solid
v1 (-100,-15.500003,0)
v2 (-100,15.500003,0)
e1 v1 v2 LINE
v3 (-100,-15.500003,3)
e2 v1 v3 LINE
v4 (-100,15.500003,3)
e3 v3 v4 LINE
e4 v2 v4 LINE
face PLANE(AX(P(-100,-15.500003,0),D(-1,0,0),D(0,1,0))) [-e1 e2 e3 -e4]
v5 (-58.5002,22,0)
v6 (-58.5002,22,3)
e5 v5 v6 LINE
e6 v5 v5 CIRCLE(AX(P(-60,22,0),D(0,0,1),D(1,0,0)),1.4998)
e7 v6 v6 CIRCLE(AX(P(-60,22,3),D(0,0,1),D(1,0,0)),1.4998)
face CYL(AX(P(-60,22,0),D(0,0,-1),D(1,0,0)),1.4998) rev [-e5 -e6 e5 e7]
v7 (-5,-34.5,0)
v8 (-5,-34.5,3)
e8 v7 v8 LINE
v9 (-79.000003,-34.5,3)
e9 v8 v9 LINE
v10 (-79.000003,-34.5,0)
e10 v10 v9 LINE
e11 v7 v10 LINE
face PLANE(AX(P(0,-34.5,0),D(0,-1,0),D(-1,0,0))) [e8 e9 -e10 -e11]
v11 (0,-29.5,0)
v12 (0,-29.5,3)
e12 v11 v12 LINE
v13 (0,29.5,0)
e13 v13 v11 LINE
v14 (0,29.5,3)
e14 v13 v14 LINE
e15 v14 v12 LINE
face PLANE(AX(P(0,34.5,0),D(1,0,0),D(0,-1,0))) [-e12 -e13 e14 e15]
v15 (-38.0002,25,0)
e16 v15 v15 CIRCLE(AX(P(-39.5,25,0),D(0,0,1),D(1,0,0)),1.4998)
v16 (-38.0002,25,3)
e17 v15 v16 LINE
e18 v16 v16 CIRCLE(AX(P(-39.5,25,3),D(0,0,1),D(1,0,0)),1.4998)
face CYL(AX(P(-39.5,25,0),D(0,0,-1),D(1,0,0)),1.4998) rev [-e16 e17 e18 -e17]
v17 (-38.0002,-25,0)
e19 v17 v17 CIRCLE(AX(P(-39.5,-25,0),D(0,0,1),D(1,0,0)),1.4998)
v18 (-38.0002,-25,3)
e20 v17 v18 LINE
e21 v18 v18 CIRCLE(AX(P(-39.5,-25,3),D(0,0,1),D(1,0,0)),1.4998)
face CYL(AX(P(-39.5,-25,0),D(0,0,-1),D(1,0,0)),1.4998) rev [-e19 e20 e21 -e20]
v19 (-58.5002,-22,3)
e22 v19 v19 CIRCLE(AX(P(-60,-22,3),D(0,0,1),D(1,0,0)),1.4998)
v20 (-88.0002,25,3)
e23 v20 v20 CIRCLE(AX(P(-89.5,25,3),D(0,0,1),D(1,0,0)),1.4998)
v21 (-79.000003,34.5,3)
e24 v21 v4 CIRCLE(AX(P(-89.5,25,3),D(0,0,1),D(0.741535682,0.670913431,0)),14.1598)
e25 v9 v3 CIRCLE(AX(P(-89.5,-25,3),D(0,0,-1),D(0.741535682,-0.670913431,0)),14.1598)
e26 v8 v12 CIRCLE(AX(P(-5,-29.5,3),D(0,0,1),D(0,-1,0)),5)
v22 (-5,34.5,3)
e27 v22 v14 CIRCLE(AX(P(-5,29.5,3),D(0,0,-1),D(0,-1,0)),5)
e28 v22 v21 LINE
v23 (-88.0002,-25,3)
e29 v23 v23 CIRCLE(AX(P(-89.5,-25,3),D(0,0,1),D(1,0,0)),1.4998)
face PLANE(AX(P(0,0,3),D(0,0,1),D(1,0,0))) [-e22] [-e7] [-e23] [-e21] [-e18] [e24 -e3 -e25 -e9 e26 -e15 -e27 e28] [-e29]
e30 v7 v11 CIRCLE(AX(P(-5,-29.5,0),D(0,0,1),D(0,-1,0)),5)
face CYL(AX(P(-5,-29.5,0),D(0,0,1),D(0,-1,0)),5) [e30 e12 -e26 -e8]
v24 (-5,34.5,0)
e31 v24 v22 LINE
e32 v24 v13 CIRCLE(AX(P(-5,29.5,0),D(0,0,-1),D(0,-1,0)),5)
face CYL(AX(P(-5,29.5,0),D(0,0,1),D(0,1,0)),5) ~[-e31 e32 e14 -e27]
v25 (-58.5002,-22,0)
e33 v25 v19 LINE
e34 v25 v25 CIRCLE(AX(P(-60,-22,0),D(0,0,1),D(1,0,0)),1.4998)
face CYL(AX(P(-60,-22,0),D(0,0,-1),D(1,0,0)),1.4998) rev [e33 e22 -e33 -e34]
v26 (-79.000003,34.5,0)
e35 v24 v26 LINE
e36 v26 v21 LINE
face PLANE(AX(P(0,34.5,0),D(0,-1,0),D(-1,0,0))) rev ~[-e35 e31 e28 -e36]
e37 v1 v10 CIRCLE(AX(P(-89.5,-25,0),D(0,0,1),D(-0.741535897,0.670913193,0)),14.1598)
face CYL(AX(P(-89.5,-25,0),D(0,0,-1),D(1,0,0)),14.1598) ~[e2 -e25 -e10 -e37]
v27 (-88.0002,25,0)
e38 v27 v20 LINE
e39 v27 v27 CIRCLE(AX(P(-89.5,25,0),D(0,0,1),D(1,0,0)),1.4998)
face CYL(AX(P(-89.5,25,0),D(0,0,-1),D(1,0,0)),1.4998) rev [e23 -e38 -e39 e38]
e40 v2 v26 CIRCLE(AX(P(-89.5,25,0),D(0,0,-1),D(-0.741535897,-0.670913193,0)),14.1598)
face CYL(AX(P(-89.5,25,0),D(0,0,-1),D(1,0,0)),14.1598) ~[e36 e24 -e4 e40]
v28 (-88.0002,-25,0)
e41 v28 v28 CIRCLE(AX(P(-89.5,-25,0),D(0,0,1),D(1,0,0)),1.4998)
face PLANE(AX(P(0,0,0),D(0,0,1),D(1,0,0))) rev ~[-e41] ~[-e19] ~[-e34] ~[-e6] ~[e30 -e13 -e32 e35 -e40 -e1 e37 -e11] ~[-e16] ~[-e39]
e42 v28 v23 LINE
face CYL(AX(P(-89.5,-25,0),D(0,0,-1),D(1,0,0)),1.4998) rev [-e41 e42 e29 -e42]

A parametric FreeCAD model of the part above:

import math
import FreeCAD as App
import Part
import Sketcher

V = App.Vector
Q = App.Units.Quantity


def edges_at(feature, points):
    """Names of the edges that pass closest to the given points."""
    edges = feature.Shape.Edges
    near = lambda p: min(range(len(edges)), key=lambda i: edges[i].distToShape(Part.Vertex(*p))[0])
    return sorted({f"Edge{near(p) + 1}" for p in points})

doc = App.newDocument("Part")
params = doc.addObject("Spreadsheet::Sheet", "Params")
for row, (alias, value) in enumerate([
    ("sketch1_width", "79 mm"),
    ("sketch1_height", "69 mm"),
    ("sketch1_height2", "31 mm"),
    ("pad1_length", "3 mm"),
    ("fillet_radius", "5 mm"),
], start=1):
    params.set(f"A{row}", alias)
    params.set(f"B{row}", "=" + value)
    params.setAlias(f"B{row}", alias)

body = doc.addObject("PartDesign::Body", "Body")

# Sketch on XY plane
sketch1 = body.newObject("Sketcher::SketchObject", "Sketch")
sketch1.AttachmentSupport = (doc.getObject("XY_Plane"), [""])
sketch1.MapMode = "FlatFace"
sketch1.addGeometry(Part.ArcOfCircle(Part.Circle(V(-89.5, -25, 0), V(0, 0, 1), 14.2), math.radians(138), math.radians(318)), False)
sketch1.addGeometry(Part.LineSegment(V(-79, -34.5, 0), V(0, -34.5, 0)), False)
sketch1.addGeometry(Part.LineSegment(V(0, -34.5, 0), V(0, 34.5, 0)), False)
sketch1.addGeometry(Part.LineSegment(V(0, 34.5, 0), V(-79, 34.5, 0)), False)
sketch1.addGeometry(Part.ArcOfCircle(Part.Circle(V(-89.5, 25, 0), V(0, 0, 1), 14.2), math.radians(42), math.radians(222)), False)
sketch1.addGeometry(Part.LineSegment(V(-100, 15.5, 0), V(-100, -15.5, 0)), False)
sketch1.addGeometry(Part.Circle(V(-89.5, -25, 0), V(0, 0, 1), 1.5), False)
sketch1.addGeometry(Part.Circle(V(-60, 22, 0), V(0, 0, 1), 1.5), False)
sketch1.addGeometry(Part.Circle(V(-39.5, 25, 0), V(0, 0, 1), 1.5), False)
sketch1.addGeometry(Part.Circle(V(-60, -22, 0), V(0, 0, 1), 1.5), False)
sketch1.addGeometry(Part.Circle(V(-39.5, -25, 0), V(0, 0, 1), 1.5), False)
sketch1.addGeometry(Part.Circle(V(-89.5, 25, 0), V(0, 0, 1), 1.5), False)
sketch1.addConstraint(Sketcher.Constraint("Coincident", 0, 2, 1, 1))
sketch1.addConstraint(Sketcher.Constraint("Coincident", 1, 2, 2, 1))
sketch1.addConstraint(Sketcher.Constraint("Coincident", 2, 2, 3, 1))
sketch1.addConstraint(Sketcher.Constraint("Coincident", 3, 2, 4, 1))
sketch1.addConstraint(Sketcher.Constraint("Coincident", 4, 2, 5, 1))
sketch1.addConstraint(Sketcher.Constraint("Coincident", 5, 2, 0, 1))
sketch1.addConstraint(Sketcher.Constraint("Horizontal", 1))
sketch1.addConstraint(Sketcher.Constraint("Vertical", 2))
sketch1.addConstraint(Sketcher.Constraint("Horizontal", 3))
sketch1.addConstraint(Sketcher.Constraint("Vertical", 5))
sketch1.addConstraint(Sketcher.Constraint("Coincident", 6, 3, 0, 3))
sketch1.addConstraint(Sketcher.Constraint("Coincident", 11, 3, 4, 3))
sketch1.addConstraint(Sketcher.Constraint("Equal", 0, 4))
sketch1.addConstraint(Sketcher.Constraint("Equal", 6, 7))
sketch1.addConstraint(Sketcher.Constraint("Equal", 7, 8))
sketch1.addConstraint(Sketcher.Constraint("Equal", 8, 9))
sketch1.addConstraint(Sketcher.Constraint("Equal", 9, 10))
sketch1.addConstraint(Sketcher.Constraint("Equal", 10, 11))
sketch1.addConstraint(Sketcher.Constraint("Symmetric", 1, 2, 2, 2, -1, 1))
sketch1.addConstraint(Sketcher.Constraint("Symmetric", 0, 3, 4, 3, -1))
sketch1.addConstraint(Sketcher.Constraint("Symmetric", 7, 3, 9, 3, -1))
sketch1.addConstraint(Sketcher.Constraint("Symmetric", 8, 3, 10, 3, -1))
sketch1.addConstraint(Sketcher.Constraint("Horizontal", 4, 3, 8, 3))
sketch1.addConstraint(Sketcher.Constraint("DistanceX", 1, 1, 1, 2, Q("79 mm")))
sketch1.addConstraint(Sketcher.Constraint("DistanceY", 2, 1, 2, 2, Q("69 mm")))
sketch1.addConstraint(Sketcher.Constraint("DistanceY", 5, 2, 5, 1, Q("31 mm")))
sketch1.addConstraint(Sketcher.Constraint("DistanceY", 0, 3, -1, 1, Q("25 mm")))
sketch1.addConstraint(Sketcher.Constraint("DistanceX", 7, 3, -1, 1, Q("60 mm")))
sketch1.addConstraint(Sketcher.Constraint("DistanceY", -1, 1, 7, 3, Q("22 mm")))
sketch1.addConstraint(Sketcher.Constraint("DistanceX", 4, 2, -1, 1, Q("100 mm")))
sketch1.addConstraint(Sketcher.Constraint("DistanceX", 4, 3, 8, 3, Q("50 mm")))
sketch1.addConstraint(Sketcher.Constraint("Diameter", 6, Q("2.9996 mm")))
sketch1.setExpression("Constraints[23]", "Params.sketch1_width")
sketch1.setExpression("Constraints[24]", "Params.sketch1_height")
sketch1.setExpression("Constraints[25]", "Params.sketch1_height2")
pad1 = body.newObject("PartDesign::Pad", "Pad")
pad1.Profile = sketch1
pad1.setExpression("Length", "Params.pad1_length")
doc.recompute()

fillet = body.newObject("PartDesign::Fillet", "Fillet")
fillet.Base = (pad1, edges_at(pad1, [(0, 34.5, 1.5), (0, -34.5, 1.5)]))
fillet.setExpression("Radius", "Params.fillet_radius")

doc.recompute()
